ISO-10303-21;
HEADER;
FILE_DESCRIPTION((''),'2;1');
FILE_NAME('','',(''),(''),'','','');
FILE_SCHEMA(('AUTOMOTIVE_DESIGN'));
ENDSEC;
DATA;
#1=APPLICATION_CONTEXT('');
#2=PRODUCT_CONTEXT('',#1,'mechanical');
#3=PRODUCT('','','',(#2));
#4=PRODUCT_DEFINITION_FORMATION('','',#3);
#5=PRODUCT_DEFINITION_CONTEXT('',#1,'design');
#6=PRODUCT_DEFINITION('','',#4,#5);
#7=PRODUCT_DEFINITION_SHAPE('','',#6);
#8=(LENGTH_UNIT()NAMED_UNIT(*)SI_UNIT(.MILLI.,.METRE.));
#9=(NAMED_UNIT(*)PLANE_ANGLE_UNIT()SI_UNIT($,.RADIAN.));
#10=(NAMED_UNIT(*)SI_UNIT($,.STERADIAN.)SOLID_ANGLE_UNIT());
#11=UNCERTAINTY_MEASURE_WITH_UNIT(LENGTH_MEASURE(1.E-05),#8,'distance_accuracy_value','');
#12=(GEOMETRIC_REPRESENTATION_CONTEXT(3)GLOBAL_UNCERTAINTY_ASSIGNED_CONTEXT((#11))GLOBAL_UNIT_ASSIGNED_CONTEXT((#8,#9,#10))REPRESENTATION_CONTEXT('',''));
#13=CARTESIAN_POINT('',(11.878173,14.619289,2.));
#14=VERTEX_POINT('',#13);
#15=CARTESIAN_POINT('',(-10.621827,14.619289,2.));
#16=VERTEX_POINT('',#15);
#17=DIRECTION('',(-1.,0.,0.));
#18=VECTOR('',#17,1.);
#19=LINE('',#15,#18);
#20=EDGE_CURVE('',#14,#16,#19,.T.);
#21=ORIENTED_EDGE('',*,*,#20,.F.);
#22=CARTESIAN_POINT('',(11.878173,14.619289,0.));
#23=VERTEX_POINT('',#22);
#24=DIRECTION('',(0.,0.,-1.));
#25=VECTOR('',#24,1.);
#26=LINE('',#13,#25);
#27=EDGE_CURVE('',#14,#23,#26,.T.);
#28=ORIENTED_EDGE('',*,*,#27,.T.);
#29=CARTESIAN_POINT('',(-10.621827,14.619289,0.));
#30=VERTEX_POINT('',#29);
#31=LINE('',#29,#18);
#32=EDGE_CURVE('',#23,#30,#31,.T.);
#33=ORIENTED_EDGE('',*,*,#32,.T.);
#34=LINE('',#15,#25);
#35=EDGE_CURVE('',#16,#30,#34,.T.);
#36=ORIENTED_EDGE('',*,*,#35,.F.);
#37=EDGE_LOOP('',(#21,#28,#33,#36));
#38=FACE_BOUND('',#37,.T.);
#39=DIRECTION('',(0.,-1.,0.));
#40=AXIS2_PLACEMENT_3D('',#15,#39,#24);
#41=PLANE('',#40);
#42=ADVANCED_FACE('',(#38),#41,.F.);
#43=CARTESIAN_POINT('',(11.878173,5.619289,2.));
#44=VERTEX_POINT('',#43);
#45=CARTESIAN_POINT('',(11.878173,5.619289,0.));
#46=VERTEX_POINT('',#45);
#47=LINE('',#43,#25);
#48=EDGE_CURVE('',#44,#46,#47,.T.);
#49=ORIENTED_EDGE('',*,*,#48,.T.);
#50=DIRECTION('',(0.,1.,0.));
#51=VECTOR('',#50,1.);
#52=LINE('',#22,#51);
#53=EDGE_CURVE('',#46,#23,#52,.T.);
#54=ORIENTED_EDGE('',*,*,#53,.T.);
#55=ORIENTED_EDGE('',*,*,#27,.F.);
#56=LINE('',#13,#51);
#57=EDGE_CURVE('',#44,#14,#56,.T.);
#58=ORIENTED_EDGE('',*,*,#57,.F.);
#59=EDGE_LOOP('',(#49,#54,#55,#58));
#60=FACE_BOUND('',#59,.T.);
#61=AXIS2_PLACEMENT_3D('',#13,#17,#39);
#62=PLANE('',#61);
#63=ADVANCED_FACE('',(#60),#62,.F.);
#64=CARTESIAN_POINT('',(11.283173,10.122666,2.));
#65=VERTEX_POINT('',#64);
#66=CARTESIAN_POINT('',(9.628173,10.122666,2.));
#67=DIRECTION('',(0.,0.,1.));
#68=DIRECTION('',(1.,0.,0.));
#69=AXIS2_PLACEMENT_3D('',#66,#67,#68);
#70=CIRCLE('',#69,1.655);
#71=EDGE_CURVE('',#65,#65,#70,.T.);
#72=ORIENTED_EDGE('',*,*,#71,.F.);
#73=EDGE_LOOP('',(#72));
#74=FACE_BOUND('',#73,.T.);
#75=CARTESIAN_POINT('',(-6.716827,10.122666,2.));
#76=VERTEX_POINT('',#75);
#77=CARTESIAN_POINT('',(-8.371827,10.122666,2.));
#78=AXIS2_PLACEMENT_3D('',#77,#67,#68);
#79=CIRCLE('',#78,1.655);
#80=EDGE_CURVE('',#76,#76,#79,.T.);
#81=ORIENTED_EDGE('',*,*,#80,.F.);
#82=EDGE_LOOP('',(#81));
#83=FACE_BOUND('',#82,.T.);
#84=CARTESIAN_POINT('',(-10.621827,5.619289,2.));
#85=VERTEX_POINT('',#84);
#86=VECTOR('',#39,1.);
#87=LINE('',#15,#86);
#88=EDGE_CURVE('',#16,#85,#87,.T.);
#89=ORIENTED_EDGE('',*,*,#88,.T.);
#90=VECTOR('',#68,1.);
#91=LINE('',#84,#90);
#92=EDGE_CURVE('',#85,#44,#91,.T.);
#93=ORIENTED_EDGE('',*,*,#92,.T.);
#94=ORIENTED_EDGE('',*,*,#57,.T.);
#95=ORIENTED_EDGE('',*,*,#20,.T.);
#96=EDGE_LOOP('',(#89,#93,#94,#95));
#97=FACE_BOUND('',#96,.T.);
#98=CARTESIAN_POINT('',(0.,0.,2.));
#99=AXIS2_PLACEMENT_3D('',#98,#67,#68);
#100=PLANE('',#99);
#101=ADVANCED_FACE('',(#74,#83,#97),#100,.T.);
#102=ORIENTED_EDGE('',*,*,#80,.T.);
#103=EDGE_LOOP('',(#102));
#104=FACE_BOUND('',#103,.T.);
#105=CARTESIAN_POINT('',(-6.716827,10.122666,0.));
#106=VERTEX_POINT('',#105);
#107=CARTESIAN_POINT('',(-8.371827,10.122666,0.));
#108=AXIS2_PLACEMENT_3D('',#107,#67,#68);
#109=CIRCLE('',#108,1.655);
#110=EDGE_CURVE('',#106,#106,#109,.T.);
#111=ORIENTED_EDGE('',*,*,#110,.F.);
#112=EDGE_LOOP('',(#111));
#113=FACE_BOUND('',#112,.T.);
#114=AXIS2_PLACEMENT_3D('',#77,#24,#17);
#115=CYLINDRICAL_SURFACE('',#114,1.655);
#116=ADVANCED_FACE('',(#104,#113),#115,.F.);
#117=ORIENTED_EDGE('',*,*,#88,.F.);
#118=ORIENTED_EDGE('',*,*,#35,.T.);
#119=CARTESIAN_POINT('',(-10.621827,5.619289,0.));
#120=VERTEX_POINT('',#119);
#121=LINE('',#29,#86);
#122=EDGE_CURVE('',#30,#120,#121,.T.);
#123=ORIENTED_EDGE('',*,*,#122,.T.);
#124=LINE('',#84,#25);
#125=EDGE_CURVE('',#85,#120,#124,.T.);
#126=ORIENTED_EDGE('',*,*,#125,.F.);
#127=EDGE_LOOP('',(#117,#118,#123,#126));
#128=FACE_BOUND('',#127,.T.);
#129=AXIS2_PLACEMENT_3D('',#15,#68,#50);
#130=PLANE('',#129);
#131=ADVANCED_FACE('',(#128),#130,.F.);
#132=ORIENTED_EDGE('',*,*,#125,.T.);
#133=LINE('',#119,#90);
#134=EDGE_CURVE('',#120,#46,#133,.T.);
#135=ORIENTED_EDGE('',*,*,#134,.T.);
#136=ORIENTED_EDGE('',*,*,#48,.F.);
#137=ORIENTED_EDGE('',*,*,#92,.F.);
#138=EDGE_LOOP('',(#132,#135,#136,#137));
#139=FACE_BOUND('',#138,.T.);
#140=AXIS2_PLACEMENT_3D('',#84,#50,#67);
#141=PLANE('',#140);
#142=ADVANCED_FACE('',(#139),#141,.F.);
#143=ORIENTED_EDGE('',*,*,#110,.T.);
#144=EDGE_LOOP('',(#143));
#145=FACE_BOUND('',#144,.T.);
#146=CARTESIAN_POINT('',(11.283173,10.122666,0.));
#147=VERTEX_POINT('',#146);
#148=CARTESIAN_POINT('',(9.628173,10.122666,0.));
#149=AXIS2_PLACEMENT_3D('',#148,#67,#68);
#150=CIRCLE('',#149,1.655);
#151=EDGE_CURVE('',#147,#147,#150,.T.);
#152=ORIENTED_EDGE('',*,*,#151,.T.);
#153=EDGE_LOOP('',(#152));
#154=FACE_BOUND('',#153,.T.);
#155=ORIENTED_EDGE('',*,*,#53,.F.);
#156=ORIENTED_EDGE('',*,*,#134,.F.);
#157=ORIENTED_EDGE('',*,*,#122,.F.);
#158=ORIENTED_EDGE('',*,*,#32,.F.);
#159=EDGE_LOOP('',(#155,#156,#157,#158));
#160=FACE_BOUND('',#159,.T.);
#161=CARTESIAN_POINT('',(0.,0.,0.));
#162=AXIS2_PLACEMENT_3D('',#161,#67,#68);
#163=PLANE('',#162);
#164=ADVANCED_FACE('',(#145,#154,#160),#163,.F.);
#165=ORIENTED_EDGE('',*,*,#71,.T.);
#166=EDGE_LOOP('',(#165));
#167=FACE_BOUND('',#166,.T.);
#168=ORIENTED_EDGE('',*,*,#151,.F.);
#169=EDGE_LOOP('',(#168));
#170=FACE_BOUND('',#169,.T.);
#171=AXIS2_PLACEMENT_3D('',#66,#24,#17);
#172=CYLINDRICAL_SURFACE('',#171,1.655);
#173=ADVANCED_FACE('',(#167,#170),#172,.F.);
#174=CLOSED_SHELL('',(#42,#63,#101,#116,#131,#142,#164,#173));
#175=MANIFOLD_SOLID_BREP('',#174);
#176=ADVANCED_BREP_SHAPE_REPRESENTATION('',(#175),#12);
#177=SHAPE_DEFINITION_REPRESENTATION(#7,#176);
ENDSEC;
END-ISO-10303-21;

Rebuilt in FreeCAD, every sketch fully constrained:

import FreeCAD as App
import Part
import Sketcher
from FreeCAD import Vector

doc = App.newDocument("Part")
body = doc.addObject("PartDesign::Body", "Body")

# Sketch on XY plane
sketch1 = body.newObject("Sketcher::SketchObject", "Sketch")
sketch1.AttachmentSupport = (doc.getObject("XY_Plane"), [""])
sketch1.MapMode = "FlatFace"
sketch1.addGeometry([
    Part.LineSegment(Vector(-10.6, 14.6, 0), Vector(-10.6, 5.6, 0)),  # 0
    Part.LineSegment(Vector(-10.6, 5.6, 0), Vector(11.9, 5.6, 0)),  # 1
    Part.LineSegment(Vector(11.9, 5.6, 0), Vector(11.9, 14.6, 0)),  # 2
    Part.LineSegment(Vector(11.9, 14.6, 0), Vector(-10.6, 14.6, 0)),  # 3
    Part.Circle(Vector(-8.4, 10.1, 0), Vector(0, 0, 1), 1.7),  # 4
    Part.Circle(Vector(9.6, 10.1, 0), Vector(0, 0, 1), 1.7),  # 5
], False)
sketch1.addConstraint([
    Sketcher.Constraint("Coincident", 0, 2, 1, 1),
    Sketcher.Constraint("Coincident", 1, 2, 2, 1),
    Sketcher.Constraint("Coincident", 2, 2, 3, 1),
    Sketcher.Constraint("Coincident", 3, 2, 0, 1),
    Sketcher.Constraint("Vertical", 0),
    Sketcher.Constraint("Horizontal", 1),
    Sketcher.Constraint("Vertical", 2),
    Sketcher.Constraint("Horizontal", 3),
    Sketcher.Constraint("Equal", 4, 5),
    Sketcher.Constraint("Horizontal", 4, 3, 5, 3),
    Sketcher.Constraint("Diameter", 4, 3.31),
    Sketcher.Constraint("DistanceY", 0, 2, 0, 1, 9.0),
    Sketcher.Constraint("DistanceX", 1, 1, 1, 2, 22.5),
    Sketcher.Constraint("DistanceX", 4, 3, 5, 3, 18.0),
    Sketcher.Constraint("DistanceX", 0, 2, 4, 3, 2.25),
    Sketcher.Constraint("DistanceY", -1, 1, 0, 2, 5.619289),
    Sketcher.Constraint("DistanceX", 4, 3, -1, 1, 8.371827),
    Sketcher.Constraint("DistanceY", -1, 1, 4, 3, 10.122666),
])
pad1 = body.newObject("PartDesign::Pad", "Pad")
pad1.Profile = sketch1
pad1.Length = 2

doc.recompute()
